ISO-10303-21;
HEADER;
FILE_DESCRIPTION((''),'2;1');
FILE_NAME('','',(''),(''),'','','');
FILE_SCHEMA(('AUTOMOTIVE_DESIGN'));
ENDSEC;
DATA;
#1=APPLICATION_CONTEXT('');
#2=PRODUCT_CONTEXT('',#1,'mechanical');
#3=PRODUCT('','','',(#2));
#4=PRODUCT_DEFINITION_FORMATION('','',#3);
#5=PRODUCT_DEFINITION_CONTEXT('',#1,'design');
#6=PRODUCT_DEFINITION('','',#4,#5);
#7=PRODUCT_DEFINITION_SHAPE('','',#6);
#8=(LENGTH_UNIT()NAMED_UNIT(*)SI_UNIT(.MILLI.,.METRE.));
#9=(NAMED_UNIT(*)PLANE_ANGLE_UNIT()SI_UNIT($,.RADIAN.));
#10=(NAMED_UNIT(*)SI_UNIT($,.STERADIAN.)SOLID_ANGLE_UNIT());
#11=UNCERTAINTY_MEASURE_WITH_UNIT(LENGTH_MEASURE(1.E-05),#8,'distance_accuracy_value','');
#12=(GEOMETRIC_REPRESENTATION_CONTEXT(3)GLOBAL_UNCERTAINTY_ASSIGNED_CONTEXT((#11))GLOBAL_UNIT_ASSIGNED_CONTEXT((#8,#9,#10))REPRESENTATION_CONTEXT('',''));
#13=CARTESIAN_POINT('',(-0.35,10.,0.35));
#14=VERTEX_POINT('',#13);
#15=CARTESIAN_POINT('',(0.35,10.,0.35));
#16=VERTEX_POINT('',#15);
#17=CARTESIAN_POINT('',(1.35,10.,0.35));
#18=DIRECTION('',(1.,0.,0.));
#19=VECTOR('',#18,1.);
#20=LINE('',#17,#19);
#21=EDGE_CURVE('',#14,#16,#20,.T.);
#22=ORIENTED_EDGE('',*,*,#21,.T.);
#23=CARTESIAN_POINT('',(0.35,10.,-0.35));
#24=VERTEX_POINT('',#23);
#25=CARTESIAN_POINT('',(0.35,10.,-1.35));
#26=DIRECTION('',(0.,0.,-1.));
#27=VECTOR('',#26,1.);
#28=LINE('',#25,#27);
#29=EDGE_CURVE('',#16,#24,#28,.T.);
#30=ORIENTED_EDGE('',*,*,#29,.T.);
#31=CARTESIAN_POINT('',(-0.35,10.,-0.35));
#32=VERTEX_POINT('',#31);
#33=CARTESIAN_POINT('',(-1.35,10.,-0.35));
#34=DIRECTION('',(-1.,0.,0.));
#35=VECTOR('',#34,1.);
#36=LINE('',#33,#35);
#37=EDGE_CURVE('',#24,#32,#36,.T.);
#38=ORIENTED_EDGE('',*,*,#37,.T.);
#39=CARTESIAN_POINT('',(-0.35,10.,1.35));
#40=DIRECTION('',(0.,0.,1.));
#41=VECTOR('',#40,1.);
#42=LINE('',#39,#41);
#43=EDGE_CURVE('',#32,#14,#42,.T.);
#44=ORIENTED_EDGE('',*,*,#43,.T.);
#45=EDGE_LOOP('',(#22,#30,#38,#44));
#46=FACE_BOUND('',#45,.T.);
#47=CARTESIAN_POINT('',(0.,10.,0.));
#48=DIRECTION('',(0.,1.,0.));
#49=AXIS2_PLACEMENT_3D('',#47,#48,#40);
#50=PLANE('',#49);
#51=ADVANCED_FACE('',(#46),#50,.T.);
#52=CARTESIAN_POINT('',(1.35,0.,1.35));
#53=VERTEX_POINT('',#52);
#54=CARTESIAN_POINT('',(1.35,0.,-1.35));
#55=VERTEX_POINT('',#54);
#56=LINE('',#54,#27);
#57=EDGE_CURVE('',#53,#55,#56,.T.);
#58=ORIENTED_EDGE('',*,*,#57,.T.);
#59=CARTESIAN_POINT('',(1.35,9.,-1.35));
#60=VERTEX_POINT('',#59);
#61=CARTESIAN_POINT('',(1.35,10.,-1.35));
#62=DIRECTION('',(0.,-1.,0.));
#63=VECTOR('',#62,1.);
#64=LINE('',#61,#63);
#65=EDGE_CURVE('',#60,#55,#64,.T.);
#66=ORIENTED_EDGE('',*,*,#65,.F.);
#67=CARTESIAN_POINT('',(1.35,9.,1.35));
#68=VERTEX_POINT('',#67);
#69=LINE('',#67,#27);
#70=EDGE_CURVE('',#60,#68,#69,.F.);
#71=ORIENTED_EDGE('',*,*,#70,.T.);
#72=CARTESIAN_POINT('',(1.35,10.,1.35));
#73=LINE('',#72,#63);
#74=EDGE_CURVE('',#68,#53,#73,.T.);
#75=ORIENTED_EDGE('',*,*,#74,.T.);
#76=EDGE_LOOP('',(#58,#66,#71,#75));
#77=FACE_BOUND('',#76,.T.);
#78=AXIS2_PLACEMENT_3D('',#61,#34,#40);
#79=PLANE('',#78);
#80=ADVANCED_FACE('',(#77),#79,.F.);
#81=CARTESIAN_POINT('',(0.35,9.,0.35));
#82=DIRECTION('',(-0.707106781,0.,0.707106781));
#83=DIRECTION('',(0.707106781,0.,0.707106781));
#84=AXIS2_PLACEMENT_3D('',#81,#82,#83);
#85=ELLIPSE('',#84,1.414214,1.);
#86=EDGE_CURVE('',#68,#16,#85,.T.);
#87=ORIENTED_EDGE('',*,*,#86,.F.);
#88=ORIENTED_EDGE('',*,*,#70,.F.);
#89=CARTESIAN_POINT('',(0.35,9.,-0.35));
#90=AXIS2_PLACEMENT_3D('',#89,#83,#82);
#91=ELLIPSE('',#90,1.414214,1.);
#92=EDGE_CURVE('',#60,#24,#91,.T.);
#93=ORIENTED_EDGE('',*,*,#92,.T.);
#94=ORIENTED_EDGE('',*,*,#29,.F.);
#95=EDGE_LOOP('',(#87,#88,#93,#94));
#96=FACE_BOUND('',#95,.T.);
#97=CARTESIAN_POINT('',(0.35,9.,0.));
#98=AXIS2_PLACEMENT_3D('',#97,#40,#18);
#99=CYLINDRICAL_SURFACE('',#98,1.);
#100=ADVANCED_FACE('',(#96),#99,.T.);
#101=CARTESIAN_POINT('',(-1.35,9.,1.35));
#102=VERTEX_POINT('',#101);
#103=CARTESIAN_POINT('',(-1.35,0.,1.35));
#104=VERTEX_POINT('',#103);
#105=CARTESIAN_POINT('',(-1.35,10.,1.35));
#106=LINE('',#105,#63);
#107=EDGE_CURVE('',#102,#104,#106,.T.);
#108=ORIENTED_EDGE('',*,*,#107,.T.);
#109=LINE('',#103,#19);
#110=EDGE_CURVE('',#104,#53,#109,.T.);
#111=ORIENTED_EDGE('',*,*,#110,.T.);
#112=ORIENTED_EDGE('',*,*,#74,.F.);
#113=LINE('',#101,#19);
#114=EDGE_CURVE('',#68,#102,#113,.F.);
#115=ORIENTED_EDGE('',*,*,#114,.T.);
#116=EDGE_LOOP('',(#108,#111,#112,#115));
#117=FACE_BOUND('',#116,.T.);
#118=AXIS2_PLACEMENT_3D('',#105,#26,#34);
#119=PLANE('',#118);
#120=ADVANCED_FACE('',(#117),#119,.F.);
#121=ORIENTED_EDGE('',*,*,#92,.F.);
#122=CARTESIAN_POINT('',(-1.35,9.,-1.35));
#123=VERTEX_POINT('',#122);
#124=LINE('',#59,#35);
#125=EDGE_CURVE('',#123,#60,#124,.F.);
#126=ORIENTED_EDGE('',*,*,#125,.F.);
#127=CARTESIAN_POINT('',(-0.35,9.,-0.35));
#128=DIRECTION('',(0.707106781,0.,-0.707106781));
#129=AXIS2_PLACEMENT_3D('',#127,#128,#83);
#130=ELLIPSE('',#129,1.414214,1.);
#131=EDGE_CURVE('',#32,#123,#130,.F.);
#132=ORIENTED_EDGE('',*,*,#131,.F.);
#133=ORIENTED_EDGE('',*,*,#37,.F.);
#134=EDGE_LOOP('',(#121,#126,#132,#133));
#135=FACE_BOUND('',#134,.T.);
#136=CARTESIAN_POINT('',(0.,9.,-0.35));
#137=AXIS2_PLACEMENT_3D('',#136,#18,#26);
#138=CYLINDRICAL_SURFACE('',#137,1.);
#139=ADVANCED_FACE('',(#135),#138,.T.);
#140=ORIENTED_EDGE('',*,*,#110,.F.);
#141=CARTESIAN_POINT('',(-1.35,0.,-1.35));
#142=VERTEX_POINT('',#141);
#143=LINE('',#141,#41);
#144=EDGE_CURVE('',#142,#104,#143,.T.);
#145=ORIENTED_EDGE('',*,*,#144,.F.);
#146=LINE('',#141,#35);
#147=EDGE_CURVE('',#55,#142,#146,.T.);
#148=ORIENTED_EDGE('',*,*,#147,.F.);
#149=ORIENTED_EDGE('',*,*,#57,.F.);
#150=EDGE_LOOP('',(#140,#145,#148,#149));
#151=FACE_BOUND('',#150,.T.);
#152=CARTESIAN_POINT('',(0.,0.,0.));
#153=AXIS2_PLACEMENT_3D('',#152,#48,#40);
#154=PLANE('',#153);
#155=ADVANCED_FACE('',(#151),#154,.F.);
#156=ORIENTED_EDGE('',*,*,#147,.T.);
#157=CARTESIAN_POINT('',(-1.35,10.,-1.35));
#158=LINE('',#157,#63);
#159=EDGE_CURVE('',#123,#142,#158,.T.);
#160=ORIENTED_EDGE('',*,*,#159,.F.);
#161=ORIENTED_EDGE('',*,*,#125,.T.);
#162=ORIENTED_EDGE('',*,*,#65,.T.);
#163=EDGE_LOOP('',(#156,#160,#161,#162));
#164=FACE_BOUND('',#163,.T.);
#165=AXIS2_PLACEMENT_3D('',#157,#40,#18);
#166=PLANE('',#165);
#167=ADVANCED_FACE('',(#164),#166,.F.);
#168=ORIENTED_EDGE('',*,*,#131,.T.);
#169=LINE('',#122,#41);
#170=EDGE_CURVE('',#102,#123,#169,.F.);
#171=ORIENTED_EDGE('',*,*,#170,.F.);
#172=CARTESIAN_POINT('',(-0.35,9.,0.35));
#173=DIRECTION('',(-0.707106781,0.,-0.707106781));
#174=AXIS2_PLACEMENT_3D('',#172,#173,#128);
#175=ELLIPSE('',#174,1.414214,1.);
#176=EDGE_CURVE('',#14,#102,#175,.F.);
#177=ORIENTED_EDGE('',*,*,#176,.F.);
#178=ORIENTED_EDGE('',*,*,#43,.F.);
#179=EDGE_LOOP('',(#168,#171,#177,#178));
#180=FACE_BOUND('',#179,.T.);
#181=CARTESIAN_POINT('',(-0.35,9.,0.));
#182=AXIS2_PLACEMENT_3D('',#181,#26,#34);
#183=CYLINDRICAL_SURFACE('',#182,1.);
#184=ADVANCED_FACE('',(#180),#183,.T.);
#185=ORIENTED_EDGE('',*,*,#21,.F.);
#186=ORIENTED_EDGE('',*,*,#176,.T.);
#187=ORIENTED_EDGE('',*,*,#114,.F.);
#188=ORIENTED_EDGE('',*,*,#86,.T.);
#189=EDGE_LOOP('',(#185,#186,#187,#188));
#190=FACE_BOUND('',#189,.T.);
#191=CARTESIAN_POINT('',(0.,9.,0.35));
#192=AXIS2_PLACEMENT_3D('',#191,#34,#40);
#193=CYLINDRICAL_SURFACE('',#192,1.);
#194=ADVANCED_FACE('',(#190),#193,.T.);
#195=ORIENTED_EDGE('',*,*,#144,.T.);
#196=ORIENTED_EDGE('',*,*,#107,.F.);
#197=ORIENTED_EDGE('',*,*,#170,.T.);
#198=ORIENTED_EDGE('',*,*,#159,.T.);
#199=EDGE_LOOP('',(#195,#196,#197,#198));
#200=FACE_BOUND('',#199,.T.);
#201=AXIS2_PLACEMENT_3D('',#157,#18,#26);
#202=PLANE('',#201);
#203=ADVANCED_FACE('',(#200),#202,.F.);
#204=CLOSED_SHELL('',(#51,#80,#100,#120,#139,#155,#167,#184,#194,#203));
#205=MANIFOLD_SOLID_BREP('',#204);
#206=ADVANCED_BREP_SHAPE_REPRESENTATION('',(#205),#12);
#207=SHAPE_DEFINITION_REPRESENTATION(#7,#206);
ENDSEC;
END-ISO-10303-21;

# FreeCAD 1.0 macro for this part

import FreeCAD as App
import Part
import Sketcher

V = App.Vector
Q = App.Units.Quantity


def edges_at(feature, points):
    """Names of the edges that pass closest to the given points."""
    edges = feature.Shape.Edges
    near = lambda p: min(range(len(edges)), key=lambda i: edges[i].distToShape(Part.Vertex(*p))[0])
    return sorted({f"Edge{near(p) + 1}" for p in points})

doc = App.newDocument("Part")
params = doc.addObject("Spreadsheet::Sheet", "Params")
for row, (alias, value) in enumerate([
    ("sketch1_width", "2.7 mm"),
    ("pad1_length", "10 mm"),
    ("fillet_radius", "1 mm"),
], start=1):
    params.set(f"A{row}", alias)
    params.set(f"B{row}", "=" + value)
    params.setAlias(f"B{row}", alias)

body = doc.addObject("PartDesign::Body", "Body")

# Sketch on XZ plane
sketch1 = doc.addObject("Sketcher::SketchObject", "Sketch")
body.addObject(sketch1)
sketch1.AttachmentSupport = (doc.XZ_Plane, [""])
sketch1.MapMode = "FlatFace"
sketch1.addGeometry([
    Part.LineSegment(V(-1.4, -1.4, 0), V(-1.4, 1.4, 0)),
    Part.LineSegment(V(-1.4, 1.4, 0), V(1.4, 1.4, 0)),
    Part.LineSegment(V(1.4, 1.4, 0), V(1.4, -1.4, 0)),
    Part.LineSegment(V(1.4, -1.4, 0), V(-1.4, -1.4, 0)),
], False)
sketch1.addConstraint([
    Sketcher.Constraint("Coincident", 0, 2, 1, 1),
    Sketcher.Constraint("Coincident", 1, 2, 2, 1),
    Sketcher.Constraint("Coincident", 2, 2, 3, 1),
    Sketcher.Constraint("Coincident", 3, 2, 0, 1),
    Sketcher.Constraint("Vertical", 0),
    Sketcher.Constraint("Horizontal", 1),
    Sketcher.Constraint("Vertical", 2),
    Sketcher.Constraint("Horizontal", 3),
    Sketcher.Constraint("Symmetric", 0, 2, 2, 2, -1, 1),
    Sketcher.Constraint("Equal", 3, 0),
    Sketcher.Constraint("DistanceX", 1, 1, 1, 2, Q("2.7 mm")),
])
sketch1.setExpression("Constraints[10]", "Params.sketch1_width")
pad1 = doc.addObject("PartDesign::Pad", "Pad")
body.addObject(pad1)
pad1.Profile = sketch1
pad1.setExpression("Length", "Params.pad1_length")
pad1.Reversed = True
doc.recompute()

fillet = doc.addObject("PartDesign::Fillet", "Fillet")
body.addObject(fillet)
fillet.Base = (pad1, edges_at(pad1, [
    (-1.35, 10, 0),
    (0, 10, 1.35),
    (1.35, 10, 0),
    (0, 10, -1.35),
]))
fillet.setExpression("Radius", "Params.fillet_radius")

doc.recompute()
